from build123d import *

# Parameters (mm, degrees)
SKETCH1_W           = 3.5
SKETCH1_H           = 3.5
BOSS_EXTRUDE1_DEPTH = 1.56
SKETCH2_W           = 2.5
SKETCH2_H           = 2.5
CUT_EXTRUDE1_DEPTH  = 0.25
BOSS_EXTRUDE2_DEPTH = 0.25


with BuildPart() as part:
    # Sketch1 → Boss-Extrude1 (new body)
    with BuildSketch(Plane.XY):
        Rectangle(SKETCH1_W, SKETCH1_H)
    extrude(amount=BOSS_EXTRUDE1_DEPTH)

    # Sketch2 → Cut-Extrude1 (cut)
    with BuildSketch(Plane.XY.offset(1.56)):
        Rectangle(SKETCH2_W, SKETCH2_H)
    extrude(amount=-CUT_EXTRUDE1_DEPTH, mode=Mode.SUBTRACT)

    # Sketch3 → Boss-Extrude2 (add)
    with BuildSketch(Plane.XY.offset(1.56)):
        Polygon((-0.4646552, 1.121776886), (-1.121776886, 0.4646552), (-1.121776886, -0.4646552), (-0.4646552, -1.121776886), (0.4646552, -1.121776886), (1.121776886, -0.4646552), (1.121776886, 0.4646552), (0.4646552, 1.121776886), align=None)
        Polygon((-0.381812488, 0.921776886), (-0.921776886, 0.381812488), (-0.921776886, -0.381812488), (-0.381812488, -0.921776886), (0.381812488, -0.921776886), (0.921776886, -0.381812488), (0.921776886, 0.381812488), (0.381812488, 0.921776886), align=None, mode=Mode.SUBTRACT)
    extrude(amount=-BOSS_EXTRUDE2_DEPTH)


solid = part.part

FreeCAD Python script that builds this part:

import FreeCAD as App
import Part
import Sketcher


def add_polygon(sketch, points):
    """Adds a closed chain of lines whose ends are joined by coincident constraints."""
    first, n = sketch.GeometryCount, len(points)
    for a, b in zip(points, points[1:] + points[:1]):
        sketch.addGeometry(Part.LineSegment(App.Vector(*a, 0), App.Vector(*b, 0)), False)
    for i in range(n):
        sketch.addConstraint(Sketcher.Constraint("Coincident", first + i, 2, first + (i + 1) % n, 1))

doc = App.newDocument("Part")
body = doc.addObject("PartDesign::Body", "Body")

# Sketch on XY plane
sketch1 = doc.addObject("Sketcher::SketchObject", "Sketch")
body.addObject(sketch1)
sketch1.AttachmentSupport = (doc.XY_Plane, [""])
sketch1.MapMode = "FlatFace"
add_polygon(sketch1, [(-1.75, 1.75), (-1.75, -1.75), (1.75, -1.75), (1.75, 1.75)])  # lines 0-3
sketch1.addConstraint([
    Sketcher.Constraint("Vertical", 0),
    Sketcher.Constraint("Horizontal", 1),
    Sketcher.Constraint("Vertical", 2),
    Sketcher.Constraint("Horizontal", 3),
    Sketcher.Constraint("Symmetric", 0, 2, 2, 2, -1, 1),
    Sketcher.Constraint("Equal", 3, 0),
    Sketcher.Constraint("DistanceX", 1, 1, 1, 2, 3.5),
])
pad1 = doc.addObject("PartDesign::Pad", "Pad")
body.addObject(pad1)
pad1.Profile = sketch1
pad1.Length = 1.56

# Sketch on XY plane
sketch2 = doc.addObject("Sketcher::SketchObject", "Sketch001")
body.addObject(sketch2)
sketch2.AttachmentSupport = (doc.XY_Plane, [""])
sketch2.MapMode = "FlatFace"
sketch2.AttachmentOffset = App.Placement(App.Vector(0, 0, 1.56), App.Rotation())
add_polygon(sketch2, [(-1.25, 1.25), (-1.25, -1.25), (1.25, -1.25), (1.25, 1.25)])  # lines 0-3
sketch2.addConstraint([
    Sketcher.Constraint("Vertical", 0),
    Sketcher.Constraint("Horizontal", 1),
    Sketcher.Constraint("Vertical", 2),
    Sketcher.Constraint("Horizontal", 3),
    Sketcher.Constraint("Symmetric", 0, 2, 2, 2, -1, 1),
    Sketcher.Constraint("Equal", 3, 0),
    Sketcher.Constraint("DistanceX", 1, 1, 1, 2, 2.5),
])
pocket1 = doc.addObject("PartDesign::Pocket", "Pocket")
body.addObject(pocket1)
pocket1.Profile = sketch2
pocket1.Length = 0.25

# Sketch on XY plane
sketch3 = doc.addObject("Sketcher::SketchObject", "Sketch002")
body.addObject(sketch3)
sketch3.AttachmentSupport = (doc.XY_Plane, [""])
sketch3.MapMode = "FlatFace"
sketch3.AttachmentOffset = App.Placement(App.Vector(0, 0, 1.56), App.Rotation())
add_polygon(sketch3, [(-0.464655, 1.121777), (-1.121777, 0.464655), (-1.121777, -0.464655), (-0.464655, -1.121777), (0.464655, -1.121777), (1.121777, -0.464655), (1.121777, 0.464655), (0.464655, 1.121777)])  # lines 0-7
add_polygon(sketch3, [(-0.921777, 0.381812), (-0.381812, 0.921777), (0.381812, 0.921777), (0.921777, 0.381812), (0.921777, -0.381812), (0.381812, -0.921777), (-0.381812, -0.921777), (-0.921777, -0.381812)])  # lines 8-15
sketch3.addConstraint([
    Sketcher.Constraint("Vertical", 1),
    Sketcher.Constraint("Horizontal", 3),
    Sketcher.Constraint("Vertical", 5),
    Sketcher.Constraint("Horizontal", 7),
    Sketcher.Constraint("Horizontal", 9),
    Sketcher.Constraint("Vertical", 11),
    Sketcher.Constraint("Horizontal", 13),
    Sketcher.Constraint("Vertical", 15),
    Sketcher.Constraint("Symmetric", 0, 2, 4, 2, -1, 1),
    Sketcher.Constraint("Symmetric", 2, 2, 6, 2, -1, 1),
    Sketcher.Constraint("Symmetric", 8, 2, 12, 2, -1, 1),
    Sketcher.Constraint("Symmetric", 10, 2, 14, 2, -1, 1),
    Sketcher.Constraint("Perpendicular", 0, 2),
    Sketcher.Constraint("Perpendicular", 2, 4),
    Sketcher.Constraint("Perpendicular", 4, 6),
    Sketcher.Constraint("Perpendicular", 6, 8),
    Sketcher.Constraint("Perpendicular", 8, 10),
    Sketcher.Constraint("Perpendicular", 10, 12),
    Sketcher.Constraint("Perpendicular", 12, 14),
    Sketcher.Constraint("Horizontal", 1, 2, 4, 2),
    Sketcher.Constraint("Horizontal", 11, 2, 14, 2),
    Sketcher.Constraint("Vertical", 3, 2, 6, 2),
    Sketcher.Constraint("Equal", 7, 1),
    Sketcher.Constraint("Equal", 13, 11),
    Sketcher.Constraint("DistanceY", 8, 2, 7, 2, 0.2),
    Sketcher.Constraint("DistanceX", 3, 1, 3, 2, 0.92931),
    Sketcher.Constraint("Distance", 0, 0.92931),
    Sketcher.Constraint("DistanceX", 9, 1, 9, 2, 0.763625),
])
pad2 = doc.addObject("PartDesign::Pad", "Pad001")
body.addObject(pad2)
pad2.Profile = sketch3
pad2.Length = 0.25
pad2.Reversed = True

doc.recompute()
